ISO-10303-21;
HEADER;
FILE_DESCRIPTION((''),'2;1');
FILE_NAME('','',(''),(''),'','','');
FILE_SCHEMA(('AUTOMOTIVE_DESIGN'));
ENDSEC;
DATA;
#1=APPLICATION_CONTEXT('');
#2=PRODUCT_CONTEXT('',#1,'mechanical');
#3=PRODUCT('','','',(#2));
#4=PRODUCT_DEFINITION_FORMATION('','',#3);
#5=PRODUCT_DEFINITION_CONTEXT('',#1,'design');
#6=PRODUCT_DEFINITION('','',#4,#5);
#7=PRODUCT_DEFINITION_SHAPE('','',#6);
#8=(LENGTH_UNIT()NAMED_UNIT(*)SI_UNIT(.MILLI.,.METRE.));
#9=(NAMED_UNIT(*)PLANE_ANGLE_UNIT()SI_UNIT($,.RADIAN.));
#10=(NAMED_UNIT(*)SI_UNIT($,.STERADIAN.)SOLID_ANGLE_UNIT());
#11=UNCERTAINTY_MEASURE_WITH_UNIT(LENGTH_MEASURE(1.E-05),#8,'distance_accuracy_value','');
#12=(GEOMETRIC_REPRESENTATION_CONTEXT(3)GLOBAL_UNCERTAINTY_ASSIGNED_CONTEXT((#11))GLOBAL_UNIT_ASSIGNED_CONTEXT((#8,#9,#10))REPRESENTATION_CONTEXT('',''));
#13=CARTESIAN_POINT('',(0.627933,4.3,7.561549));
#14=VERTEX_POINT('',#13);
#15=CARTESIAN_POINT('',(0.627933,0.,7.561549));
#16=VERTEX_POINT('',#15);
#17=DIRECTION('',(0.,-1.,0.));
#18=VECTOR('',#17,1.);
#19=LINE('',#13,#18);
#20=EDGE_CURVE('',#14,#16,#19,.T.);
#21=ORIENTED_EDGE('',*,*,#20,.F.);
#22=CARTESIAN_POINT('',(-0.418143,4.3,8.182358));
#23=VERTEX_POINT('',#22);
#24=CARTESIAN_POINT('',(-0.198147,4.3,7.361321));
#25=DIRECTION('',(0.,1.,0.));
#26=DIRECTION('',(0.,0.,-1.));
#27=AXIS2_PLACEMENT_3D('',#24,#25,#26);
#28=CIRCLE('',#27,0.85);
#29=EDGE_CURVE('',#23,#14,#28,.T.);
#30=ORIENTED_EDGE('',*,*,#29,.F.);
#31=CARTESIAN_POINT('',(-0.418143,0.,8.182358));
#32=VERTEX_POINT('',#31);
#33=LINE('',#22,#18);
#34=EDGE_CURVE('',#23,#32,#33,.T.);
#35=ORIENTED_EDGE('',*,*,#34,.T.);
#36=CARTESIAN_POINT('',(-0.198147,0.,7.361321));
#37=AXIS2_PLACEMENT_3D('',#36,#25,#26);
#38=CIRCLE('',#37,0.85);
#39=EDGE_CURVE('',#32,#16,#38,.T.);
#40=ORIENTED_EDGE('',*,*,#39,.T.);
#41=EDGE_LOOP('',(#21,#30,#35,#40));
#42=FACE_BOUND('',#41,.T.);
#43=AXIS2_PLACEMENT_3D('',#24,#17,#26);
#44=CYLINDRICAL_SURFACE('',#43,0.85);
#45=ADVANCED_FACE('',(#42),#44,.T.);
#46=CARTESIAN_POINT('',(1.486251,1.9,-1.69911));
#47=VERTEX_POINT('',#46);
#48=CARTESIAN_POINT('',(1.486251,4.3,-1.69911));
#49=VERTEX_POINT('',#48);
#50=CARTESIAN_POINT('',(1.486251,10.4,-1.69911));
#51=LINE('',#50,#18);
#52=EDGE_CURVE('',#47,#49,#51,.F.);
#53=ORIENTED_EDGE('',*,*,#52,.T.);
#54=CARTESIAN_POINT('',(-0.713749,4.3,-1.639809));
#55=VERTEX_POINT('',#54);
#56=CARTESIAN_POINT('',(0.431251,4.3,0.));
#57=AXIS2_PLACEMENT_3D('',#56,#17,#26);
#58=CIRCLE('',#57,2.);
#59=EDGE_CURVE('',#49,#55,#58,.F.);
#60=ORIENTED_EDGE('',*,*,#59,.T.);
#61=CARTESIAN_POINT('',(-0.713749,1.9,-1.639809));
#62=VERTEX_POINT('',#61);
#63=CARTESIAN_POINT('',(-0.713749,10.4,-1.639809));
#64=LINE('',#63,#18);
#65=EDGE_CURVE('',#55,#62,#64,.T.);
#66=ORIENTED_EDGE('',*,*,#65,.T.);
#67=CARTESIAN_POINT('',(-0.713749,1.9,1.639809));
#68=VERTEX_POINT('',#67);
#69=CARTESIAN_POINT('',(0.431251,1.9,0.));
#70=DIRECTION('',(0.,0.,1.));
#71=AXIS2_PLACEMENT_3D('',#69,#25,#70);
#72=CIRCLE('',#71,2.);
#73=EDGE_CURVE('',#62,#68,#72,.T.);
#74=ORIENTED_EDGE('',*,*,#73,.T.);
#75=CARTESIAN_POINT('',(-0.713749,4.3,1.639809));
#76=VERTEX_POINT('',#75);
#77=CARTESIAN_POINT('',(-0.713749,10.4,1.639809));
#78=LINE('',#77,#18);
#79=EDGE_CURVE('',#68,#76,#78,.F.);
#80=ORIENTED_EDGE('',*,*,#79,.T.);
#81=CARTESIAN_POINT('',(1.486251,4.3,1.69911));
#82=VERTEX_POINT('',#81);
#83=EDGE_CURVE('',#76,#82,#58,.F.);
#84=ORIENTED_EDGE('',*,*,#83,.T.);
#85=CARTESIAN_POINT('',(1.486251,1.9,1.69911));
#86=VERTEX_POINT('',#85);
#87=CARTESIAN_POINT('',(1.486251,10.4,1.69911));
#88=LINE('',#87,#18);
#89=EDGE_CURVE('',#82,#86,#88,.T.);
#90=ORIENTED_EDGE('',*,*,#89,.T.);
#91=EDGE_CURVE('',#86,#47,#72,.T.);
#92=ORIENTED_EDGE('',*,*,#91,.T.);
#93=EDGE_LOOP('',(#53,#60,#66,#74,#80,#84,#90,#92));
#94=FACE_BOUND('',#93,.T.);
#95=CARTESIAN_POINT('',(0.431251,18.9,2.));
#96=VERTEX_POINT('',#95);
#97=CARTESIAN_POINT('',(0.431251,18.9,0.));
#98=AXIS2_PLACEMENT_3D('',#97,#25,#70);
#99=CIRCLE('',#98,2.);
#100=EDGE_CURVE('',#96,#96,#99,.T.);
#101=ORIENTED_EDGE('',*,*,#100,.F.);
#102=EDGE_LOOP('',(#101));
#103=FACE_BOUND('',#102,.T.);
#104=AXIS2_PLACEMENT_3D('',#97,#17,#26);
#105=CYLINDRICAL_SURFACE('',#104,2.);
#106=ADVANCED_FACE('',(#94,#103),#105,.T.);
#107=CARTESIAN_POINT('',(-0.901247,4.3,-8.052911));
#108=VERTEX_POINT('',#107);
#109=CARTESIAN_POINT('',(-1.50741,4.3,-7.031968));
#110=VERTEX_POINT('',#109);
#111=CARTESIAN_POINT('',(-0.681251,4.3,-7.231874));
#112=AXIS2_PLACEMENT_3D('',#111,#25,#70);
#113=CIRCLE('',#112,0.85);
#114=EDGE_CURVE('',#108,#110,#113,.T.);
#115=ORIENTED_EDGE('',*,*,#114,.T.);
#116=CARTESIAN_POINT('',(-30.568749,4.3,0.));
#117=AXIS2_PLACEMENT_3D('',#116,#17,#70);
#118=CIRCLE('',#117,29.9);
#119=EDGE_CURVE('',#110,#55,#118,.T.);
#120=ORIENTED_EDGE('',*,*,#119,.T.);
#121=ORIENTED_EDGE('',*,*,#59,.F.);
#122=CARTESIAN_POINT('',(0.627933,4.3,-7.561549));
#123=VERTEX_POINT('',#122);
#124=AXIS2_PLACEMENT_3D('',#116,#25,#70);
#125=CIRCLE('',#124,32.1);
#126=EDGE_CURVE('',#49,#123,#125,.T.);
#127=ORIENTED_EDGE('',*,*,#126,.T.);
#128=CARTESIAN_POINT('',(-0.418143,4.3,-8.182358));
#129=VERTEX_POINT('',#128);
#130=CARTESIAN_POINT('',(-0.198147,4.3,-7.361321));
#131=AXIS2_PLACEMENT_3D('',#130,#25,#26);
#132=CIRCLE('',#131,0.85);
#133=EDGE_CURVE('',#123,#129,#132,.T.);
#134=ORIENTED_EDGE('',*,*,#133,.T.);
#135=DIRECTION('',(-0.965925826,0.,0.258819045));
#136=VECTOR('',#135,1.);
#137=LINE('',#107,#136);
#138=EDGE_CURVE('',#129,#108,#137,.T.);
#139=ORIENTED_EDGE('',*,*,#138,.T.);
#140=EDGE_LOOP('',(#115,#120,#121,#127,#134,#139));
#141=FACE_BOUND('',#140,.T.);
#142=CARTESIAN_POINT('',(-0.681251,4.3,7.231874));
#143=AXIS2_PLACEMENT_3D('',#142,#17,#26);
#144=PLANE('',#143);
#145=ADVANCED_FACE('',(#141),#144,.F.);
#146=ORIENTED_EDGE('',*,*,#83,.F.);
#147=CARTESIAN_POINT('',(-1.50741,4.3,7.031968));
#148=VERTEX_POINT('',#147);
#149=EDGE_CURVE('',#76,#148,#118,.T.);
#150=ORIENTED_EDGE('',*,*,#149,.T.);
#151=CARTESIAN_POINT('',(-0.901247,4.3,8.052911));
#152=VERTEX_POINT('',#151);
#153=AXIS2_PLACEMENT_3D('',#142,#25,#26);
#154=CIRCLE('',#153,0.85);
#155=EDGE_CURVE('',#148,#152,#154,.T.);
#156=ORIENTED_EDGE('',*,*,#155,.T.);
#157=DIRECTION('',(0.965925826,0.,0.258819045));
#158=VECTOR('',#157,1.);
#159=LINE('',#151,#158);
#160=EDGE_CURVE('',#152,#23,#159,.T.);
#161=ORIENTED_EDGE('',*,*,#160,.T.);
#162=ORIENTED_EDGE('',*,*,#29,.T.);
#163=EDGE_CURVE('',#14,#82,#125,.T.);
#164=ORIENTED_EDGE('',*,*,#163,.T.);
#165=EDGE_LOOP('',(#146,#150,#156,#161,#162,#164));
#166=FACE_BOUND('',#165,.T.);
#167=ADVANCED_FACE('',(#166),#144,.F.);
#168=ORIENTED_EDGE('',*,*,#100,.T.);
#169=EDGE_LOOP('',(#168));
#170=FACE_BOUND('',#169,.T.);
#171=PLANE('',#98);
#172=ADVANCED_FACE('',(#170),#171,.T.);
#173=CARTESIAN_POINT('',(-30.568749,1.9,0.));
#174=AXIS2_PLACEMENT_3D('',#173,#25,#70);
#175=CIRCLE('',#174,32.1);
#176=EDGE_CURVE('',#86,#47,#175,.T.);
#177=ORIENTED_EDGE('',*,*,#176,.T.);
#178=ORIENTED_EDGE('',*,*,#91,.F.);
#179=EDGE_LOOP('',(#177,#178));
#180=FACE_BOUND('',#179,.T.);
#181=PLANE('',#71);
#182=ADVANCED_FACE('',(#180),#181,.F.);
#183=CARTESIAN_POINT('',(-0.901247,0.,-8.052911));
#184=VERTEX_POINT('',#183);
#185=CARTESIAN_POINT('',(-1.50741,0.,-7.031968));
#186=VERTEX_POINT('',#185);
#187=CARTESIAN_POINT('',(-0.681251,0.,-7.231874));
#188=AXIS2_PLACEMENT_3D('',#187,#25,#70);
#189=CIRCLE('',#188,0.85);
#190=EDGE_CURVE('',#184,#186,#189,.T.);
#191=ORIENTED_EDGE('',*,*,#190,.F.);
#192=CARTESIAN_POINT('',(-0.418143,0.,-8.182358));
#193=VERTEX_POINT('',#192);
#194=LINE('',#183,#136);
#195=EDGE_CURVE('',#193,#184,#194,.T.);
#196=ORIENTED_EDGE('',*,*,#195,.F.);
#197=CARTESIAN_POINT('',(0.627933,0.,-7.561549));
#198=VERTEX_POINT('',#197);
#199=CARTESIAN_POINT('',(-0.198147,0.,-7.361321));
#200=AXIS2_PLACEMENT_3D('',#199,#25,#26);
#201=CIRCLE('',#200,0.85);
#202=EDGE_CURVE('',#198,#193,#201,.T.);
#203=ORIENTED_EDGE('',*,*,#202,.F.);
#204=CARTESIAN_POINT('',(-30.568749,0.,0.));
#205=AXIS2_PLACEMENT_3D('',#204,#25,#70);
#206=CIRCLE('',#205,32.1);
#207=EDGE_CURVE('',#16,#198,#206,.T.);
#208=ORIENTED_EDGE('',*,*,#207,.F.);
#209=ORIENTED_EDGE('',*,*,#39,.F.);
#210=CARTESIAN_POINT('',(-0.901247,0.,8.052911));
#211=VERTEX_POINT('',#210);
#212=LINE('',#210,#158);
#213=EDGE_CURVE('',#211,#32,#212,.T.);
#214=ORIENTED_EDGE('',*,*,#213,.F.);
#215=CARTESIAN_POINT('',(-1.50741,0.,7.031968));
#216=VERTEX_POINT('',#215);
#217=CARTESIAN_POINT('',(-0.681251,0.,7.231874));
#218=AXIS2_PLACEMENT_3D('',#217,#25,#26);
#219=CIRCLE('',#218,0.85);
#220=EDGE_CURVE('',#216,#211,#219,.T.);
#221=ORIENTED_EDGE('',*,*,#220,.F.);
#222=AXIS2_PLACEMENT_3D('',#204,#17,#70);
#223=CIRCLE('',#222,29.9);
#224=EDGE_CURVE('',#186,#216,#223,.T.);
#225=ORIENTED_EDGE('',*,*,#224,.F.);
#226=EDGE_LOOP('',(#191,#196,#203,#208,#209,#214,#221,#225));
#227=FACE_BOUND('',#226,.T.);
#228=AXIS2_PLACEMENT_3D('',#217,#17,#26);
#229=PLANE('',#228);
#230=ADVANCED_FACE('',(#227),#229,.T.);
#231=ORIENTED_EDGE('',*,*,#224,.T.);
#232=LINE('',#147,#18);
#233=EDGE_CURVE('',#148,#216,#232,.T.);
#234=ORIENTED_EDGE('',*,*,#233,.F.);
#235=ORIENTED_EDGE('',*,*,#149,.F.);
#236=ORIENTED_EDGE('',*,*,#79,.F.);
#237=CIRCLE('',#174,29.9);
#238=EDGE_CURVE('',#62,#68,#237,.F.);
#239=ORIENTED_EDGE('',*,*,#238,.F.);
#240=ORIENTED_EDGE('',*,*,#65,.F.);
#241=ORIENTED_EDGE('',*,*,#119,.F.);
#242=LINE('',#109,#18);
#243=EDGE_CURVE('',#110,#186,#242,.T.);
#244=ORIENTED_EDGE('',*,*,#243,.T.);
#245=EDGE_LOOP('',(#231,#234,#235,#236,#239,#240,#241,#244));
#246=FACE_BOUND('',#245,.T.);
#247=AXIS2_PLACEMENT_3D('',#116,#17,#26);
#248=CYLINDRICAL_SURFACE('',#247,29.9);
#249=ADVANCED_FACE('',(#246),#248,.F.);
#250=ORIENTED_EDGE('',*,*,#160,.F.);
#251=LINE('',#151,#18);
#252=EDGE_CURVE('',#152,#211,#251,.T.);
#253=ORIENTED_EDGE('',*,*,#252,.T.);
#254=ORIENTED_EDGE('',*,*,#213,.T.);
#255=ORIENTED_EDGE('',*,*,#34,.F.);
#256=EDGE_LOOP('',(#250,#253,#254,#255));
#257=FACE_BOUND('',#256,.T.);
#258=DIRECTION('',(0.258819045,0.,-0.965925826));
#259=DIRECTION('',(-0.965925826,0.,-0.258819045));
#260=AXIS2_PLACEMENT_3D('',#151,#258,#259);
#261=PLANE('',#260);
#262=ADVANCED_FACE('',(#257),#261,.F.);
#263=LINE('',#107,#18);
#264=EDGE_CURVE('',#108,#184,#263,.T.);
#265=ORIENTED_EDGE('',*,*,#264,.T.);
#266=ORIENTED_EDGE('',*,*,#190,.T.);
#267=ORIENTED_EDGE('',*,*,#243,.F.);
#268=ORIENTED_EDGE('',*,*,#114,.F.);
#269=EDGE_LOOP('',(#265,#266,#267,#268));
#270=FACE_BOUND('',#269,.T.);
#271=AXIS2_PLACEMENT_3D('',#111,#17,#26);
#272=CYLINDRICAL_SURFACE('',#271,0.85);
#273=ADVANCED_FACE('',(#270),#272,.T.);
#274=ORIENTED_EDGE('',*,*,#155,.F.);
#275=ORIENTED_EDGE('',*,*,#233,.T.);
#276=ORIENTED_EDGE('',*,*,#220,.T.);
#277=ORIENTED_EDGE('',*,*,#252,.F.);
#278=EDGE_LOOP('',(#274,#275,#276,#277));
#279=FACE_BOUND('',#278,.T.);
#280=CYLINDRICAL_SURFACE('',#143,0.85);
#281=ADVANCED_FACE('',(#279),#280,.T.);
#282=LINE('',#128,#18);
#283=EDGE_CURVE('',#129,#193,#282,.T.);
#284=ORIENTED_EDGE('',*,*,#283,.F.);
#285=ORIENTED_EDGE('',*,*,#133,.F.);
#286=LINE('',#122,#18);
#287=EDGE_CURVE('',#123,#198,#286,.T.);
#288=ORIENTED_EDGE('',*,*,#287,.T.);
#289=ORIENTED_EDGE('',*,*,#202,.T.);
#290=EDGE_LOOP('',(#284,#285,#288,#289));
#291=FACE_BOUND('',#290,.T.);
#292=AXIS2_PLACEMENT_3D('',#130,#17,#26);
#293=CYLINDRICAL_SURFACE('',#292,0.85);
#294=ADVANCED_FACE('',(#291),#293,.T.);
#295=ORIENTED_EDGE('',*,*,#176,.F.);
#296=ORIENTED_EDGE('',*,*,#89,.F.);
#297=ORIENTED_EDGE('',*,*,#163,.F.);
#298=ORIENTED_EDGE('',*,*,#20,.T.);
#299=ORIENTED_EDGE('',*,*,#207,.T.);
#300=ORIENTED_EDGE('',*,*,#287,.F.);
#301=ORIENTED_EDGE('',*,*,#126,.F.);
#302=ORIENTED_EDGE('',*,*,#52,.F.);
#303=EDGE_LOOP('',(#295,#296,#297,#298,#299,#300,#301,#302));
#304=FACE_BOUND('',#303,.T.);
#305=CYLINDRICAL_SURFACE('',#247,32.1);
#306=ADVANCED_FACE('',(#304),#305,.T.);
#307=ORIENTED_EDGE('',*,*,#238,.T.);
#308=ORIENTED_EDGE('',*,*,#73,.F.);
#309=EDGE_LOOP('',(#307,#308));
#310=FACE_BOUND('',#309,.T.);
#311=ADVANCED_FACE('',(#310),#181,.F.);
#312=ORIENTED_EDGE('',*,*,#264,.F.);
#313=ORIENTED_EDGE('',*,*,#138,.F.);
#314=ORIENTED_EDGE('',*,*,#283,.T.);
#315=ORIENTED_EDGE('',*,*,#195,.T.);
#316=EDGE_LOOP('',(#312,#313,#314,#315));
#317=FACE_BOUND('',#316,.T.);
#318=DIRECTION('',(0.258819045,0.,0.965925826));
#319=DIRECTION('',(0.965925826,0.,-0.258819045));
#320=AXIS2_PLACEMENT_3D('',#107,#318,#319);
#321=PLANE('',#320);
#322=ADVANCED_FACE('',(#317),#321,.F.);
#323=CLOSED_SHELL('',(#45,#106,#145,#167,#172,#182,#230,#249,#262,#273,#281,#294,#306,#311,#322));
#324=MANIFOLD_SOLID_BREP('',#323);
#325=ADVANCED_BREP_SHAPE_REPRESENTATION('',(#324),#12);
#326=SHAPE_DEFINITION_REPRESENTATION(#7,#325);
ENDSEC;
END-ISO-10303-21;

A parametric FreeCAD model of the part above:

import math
import FreeCAD as App
import Part
import Sketcher
Q = App.Units.Quantity

doc = App.newDocument("Part")
params = doc.addObject("Spreadsheet::Sheet", "Params")
for row, (alias, value) in enumerate([
    ("sketch1_radius", "32.1 mm"),
    ("sketch1_radius2", "29.9 mm"),
    ("sketch1_radius3", "0.85 mm"),
    ("pad1_length", "4.3 mm"),
    ("sketch2_diameter", "4 mm"),
    ("pad2_length", "17 mm"),
], start=1):
    params.set(f"A{row}", alias)
    params.set(f"B{row}", "=" + value)
    params.setAlias(f"B{row}", alias)

body = doc.addObject("PartDesign::Body", "Body")

sketch1 = body.newObject("Sketcher::SketchObject", "Sketch")
sketch1.AttachmentSupport = (doc.getObject("XZ_Plane"), [""])
sketch1.MapMode = "FlatFace"
sketch1.addGeometry([
    Part.LineSegment(App.Vector(-0.9, 8.1, 0), App.Vector(-0.4, 8.2, 0)),
    Part.ArcOfCircle(Part.Circle(App.Vector(-0.2, 7.4, 0), App.Vector(0, 0, 1), 0.9), math.radians(14), math.radians(105)),
    Part.ArcOfCircle(Part.Circle(App.Vector(-30.6, 0, 0), App.Vector(0, 0, 1), 32.1), math.radians(-14), math.radians(14)),
    Part.ArcOfCircle(Part.Circle(App.Vector(-0.2, -7.4, 0), App.Vector(0, 0, 1), 0.9), math.radians(-105), math.radians(-14)),
    Part.LineSegment(App.Vector(-0.4, -8.2, 0), App.Vector(-0.9, -8.1, 0)),
    Part.ArcOfCircle(Part.Circle(App.Vector(-0.7, -7.2, 0), App.Vector(0, 0, 1), 0.9), math.radians(166), math.radians(255)),
    Part.ArcOfCircle(Part.Circle(App.Vector(-30.6, 0, 0), App.Vector(0, 0, 1), 29.9), math.radians(-14), math.radians(14)),
    Part.ArcOfCircle(Part.Circle(App.Vector(-0.7, 7.2, 0), App.Vector(0, 0, 1), 0.9), math.radians(105), math.radians(194)),
], False)
sketch1.addConstraint([
    Sketcher.Constraint("Tangent", 0, 2, 1, 2),
    Sketcher.Constraint("Tangent", 1, 1, 2, 2),
    Sketcher.Constraint("Tangent", 2, 1, 3, 2),
    Sketcher.Constraint("Tangent", 3, 1, 4, 1),
    Sketcher.Constraint("Tangent", 4, 2, 5, 2),
    Sketcher.Constraint("Tangent", 5, 1, 6, 1),
    Sketcher.Constraint("Tangent", 6, 2, 7, 2),
    Sketcher.Constraint("Tangent", 7, 1, 0, 1),
    Sketcher.Constraint("Coincident", 6, 3, 2, 3),
    Sketcher.Constraint("Equal", 1, 3),
    Sketcher.Constraint("Equal", 3, 5),
    Sketcher.Constraint("Equal", 5, 7),
    Sketcher.Constraint("Symmetric", 1, 3, 3, 3, -1),
    Sketcher.Constraint("Vertical", 5, 3, 7, 3),
    Sketcher.Constraint("Radius", 2, 32.1),
    Sketcher.Constraint("Radius", 6, 29.9),
    Sketcher.Constraint("Angle", 0, Q("15 deg")),
    Sketcher.Constraint("Radius", 1, 0.85),
    Sketcher.Constraint("DistanceX", 2, 3, 1, 3, 30.370602),
    Sketcher.Constraint("DistanceX", 2, 3, -1, 1, 30.568749),
])
sketch1.setExpression("Constraints[14]", "Params.sketch1_radius")
sketch1.setExpression("Constraints[15]", "Params.sketch1_radius2")
sketch1.setExpression("Constraints[17]", "Params.sketch1_radius3")
pad1 = body.newObject("PartDesign::Pad", "Pad")
pad1.Profile = sketch1
pad1.setExpression("Length", "Params.pad1_length")
pad1.Reversed = True

sketch2 = body.newObject("Sketcher::SketchObject", "Sketch001")
sketch2.AttachmentSupport = (doc.getObject("XZ_Plane"), [""])
sketch2.MapMode = "FlatFace"
sketch2.AttachmentOffset = App.Placement(App.Vector(0, 0, -1.9), App.Rotation())
sketch2.addGeometry(Part.Circle(App.Vector(0.4, 0, 0), App.Vector(0, 0, 1), 2), False)
sketch2.addConstraint([
    Sketcher.Constraint("PointOnObject", 0, 3, -1),
    Sketcher.Constraint("Diameter", 0, 4.0),
    Sketcher.Constraint("DistanceX", -1, 1, 0, 3, 0.431251),
])
sketch2.setExpression("Constraints[1]", "Params.sketch2_diameter")
pad2 = body.newObject("PartDesign::Pad", "Pad001")
pad2.Profile = sketch2
pad2.setExpression("Length", "Params.pad2_length")
pad2.Reversed = True

doc.recompute()
